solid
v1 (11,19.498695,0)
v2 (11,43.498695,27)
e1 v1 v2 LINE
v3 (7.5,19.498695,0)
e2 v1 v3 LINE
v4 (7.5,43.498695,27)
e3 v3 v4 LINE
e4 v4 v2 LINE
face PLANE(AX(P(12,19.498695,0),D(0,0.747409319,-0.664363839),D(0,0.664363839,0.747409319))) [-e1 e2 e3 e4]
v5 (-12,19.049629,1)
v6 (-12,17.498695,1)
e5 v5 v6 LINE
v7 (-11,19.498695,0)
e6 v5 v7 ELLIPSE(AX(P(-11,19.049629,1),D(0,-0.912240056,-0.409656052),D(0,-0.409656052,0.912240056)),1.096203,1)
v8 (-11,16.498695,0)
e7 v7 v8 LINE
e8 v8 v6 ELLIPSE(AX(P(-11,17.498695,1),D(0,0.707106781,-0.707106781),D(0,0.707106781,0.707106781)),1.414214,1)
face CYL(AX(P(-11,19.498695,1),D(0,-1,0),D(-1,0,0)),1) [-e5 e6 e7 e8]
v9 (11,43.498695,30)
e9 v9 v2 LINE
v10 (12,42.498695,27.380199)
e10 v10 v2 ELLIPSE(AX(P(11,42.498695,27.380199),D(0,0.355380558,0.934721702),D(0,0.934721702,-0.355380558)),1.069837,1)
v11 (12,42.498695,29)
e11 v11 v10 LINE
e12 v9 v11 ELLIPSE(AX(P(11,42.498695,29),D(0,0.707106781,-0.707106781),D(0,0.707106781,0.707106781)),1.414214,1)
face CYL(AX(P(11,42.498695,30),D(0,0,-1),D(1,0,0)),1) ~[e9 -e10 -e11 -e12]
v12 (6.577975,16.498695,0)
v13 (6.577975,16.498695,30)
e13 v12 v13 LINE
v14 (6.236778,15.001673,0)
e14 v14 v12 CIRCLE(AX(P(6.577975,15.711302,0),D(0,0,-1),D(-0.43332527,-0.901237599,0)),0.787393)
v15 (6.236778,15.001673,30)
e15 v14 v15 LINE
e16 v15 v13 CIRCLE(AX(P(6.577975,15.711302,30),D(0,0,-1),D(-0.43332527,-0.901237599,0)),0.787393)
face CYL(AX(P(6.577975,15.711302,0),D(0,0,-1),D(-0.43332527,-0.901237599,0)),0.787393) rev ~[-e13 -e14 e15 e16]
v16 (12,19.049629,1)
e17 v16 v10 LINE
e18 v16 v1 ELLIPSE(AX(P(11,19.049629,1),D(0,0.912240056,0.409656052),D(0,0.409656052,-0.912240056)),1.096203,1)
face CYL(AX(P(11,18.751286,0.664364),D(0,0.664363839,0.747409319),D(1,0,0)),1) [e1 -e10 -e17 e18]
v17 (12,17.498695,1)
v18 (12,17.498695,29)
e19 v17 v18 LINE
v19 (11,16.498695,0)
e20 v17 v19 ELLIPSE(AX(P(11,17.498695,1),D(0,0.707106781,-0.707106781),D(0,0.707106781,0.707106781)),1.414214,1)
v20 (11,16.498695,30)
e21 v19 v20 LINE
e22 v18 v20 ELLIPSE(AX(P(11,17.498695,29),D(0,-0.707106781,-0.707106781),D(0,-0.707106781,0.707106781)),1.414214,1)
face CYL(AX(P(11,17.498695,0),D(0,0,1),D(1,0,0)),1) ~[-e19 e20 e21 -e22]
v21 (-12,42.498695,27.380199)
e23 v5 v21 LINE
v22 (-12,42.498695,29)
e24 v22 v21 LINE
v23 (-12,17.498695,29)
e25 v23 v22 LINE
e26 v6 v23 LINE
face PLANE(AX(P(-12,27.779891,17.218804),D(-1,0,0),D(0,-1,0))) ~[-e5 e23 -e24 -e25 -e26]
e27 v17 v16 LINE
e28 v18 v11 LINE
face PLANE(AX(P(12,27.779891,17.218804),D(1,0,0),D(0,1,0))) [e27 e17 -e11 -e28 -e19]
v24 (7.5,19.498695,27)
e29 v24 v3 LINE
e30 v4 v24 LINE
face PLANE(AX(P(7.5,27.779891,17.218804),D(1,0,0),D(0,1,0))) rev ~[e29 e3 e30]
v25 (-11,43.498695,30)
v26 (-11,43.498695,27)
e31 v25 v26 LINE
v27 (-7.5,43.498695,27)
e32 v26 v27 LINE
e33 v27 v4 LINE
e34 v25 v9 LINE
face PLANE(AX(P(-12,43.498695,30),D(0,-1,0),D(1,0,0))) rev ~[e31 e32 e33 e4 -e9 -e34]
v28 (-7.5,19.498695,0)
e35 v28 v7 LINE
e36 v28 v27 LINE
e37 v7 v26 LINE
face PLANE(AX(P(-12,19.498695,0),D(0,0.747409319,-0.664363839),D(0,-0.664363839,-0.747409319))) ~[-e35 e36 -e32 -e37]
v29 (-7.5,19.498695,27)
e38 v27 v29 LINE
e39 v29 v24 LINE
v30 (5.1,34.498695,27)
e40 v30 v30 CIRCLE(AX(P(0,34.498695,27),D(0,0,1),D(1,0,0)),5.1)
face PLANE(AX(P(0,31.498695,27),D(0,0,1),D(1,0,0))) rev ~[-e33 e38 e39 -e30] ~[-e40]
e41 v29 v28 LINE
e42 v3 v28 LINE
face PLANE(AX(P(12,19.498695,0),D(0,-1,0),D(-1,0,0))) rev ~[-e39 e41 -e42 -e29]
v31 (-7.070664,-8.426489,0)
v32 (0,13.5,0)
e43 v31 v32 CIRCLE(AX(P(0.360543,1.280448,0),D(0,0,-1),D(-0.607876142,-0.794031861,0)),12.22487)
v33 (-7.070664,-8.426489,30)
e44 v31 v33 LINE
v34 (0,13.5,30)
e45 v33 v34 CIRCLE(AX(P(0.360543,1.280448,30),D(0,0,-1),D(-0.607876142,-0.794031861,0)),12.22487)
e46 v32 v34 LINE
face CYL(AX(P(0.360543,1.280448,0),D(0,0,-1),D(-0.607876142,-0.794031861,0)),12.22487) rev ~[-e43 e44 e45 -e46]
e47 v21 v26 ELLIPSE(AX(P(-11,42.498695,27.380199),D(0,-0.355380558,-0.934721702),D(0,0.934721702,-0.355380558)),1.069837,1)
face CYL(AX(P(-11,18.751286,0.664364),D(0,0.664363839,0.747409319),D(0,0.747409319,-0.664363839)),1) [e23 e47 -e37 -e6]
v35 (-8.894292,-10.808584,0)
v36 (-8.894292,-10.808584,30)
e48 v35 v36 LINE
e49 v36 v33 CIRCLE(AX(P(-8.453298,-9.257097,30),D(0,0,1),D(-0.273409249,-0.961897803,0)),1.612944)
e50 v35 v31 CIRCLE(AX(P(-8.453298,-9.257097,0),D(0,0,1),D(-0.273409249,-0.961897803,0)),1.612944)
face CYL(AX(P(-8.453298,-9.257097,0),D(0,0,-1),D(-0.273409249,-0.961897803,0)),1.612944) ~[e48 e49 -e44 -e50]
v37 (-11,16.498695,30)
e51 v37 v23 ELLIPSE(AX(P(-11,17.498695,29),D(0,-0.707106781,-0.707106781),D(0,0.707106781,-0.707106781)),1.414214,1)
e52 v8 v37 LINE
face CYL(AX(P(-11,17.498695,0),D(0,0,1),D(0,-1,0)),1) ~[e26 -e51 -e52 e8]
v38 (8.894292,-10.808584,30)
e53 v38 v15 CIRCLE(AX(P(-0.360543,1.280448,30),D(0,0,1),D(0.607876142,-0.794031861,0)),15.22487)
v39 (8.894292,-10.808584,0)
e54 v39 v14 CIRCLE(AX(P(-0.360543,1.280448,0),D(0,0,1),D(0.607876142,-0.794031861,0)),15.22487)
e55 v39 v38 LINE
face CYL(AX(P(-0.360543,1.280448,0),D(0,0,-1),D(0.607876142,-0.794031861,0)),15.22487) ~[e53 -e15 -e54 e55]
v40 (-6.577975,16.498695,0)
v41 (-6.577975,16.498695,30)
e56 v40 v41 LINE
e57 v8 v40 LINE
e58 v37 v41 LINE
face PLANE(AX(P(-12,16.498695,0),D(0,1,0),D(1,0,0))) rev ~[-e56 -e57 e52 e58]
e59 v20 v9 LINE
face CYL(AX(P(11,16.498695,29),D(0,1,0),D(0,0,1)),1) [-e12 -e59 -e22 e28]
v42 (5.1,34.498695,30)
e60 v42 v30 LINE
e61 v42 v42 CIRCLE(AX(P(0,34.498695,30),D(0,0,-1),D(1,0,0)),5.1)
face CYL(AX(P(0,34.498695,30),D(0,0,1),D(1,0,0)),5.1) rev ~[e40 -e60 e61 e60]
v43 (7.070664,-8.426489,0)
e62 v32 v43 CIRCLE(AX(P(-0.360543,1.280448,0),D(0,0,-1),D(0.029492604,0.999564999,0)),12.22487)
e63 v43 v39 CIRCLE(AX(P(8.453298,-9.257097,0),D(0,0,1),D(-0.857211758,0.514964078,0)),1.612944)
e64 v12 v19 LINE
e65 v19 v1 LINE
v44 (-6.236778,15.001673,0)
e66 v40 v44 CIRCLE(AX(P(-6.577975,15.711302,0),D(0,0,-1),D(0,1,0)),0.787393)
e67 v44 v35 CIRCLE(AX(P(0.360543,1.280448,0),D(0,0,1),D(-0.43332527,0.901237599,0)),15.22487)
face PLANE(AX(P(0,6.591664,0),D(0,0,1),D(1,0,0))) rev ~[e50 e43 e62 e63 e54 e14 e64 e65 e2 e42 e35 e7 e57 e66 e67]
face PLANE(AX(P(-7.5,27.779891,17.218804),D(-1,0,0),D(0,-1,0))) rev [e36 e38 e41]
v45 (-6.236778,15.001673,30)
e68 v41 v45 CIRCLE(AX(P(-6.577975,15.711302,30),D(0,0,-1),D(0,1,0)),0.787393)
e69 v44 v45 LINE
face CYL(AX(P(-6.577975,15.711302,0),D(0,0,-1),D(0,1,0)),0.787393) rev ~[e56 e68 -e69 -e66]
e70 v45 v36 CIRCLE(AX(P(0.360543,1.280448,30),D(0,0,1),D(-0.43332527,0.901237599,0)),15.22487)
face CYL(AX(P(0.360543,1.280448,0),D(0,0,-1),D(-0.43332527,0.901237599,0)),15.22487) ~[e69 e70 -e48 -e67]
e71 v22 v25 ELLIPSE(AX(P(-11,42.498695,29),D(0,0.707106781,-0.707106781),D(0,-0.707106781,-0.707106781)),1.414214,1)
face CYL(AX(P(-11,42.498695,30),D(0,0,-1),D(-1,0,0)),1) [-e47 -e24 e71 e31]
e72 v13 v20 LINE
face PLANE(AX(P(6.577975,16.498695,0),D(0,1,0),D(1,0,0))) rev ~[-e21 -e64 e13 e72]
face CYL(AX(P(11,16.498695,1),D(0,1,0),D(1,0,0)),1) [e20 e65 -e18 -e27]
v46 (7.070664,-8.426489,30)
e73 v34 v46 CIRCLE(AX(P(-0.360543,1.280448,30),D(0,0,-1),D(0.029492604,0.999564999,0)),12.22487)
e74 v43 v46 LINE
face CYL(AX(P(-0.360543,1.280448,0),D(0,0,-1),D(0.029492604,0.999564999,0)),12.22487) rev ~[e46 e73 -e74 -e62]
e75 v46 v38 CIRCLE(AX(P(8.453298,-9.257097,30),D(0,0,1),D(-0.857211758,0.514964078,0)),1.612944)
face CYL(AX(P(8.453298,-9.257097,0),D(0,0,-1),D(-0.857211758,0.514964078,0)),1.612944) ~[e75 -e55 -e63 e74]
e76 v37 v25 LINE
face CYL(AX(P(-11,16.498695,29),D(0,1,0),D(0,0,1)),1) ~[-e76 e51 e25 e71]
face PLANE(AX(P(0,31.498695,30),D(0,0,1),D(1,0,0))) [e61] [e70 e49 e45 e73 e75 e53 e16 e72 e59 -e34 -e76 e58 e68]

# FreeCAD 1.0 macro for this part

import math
import FreeCAD as App
import Part
import Sketcher


def edges_at(feature, points):
    """Names of the edges that pass closest to the given points."""
    edges = feature.Shape.Edges
    near = lambda p: min(range(len(edges)), key=lambda i: edges[i].distToShape(Part.Vertex(*p))[0])
    return sorted({f"Edge{near(p) + 1}" for p in points})


def add_polygon(sketch, points):
    """Adds a closed chain of lines whose ends are joined by coincident constraints."""
    first, n = sketch.GeometryCount, len(points)
    for a, b in zip(points, points[1:] + points[:1]):
        sketch.addGeometry(Part.LineSegment(App.Vector(*a, 0), App.Vector(*b, 0)), False)
    for i in range(n):
        sketch.addConstraint(Sketcher.Constraint("Coincident", first + i, 2, first + (i + 1) % n, 1))

doc = App.newDocument("Part")
params = doc.addObject("Spreadsheet::Sheet", "Params")
for row, (alias, value) in enumerate([
    ("sketch1_width", "24 mm"),
    ("sketch1_height", "3 mm"),
    ("pad1_length", "30 mm"),
    ("sketch2_diameter", "10.2 mm"),
    ("sketch2_width", "24 mm"),
    ("pad2_length", "3 mm"),
    ("sketch3_width", "24 mm"),
    ("sketch3_height", "27 mm"),
    ("pad3_length", "4.5 mm"),
    ("fillet_radius", "1 mm"),
], start=1):
    params.set(f"A{row}", alias)
    params.set(f"B{row}", "=" + value)
    params.setAlias(f"B{row}", alias)

body = doc.addObject("PartDesign::Body", "Body")

sketch1 = body.newObject("Sketcher::SketchObject", "Sketch")
sketch1.AttachmentSupport = (doc.getObject("XY_Plane"), [""])
sketch1.MapMode = "FlatFace"
sketch1.addGeometry([
    Part.ArcOfCircle(Part.Circle(App.Vector(-0.360543, 1.280448, 0), App.Vector(0, 0, 1), 12.22487), math.radians(-52.563908), math.radians(88.309953)),
    Part.ArcOfCircle(Part.Circle(App.Vector(8.453298, -9.257097, 0), App.Vector(0, 0, 1), 1.612944), math.radians(149.004946), math.radians(285.867238)),
    Part.ArcOfCircle(Part.Circle(App.Vector(-0.360543, 1.280448, 0), App.Vector(0, 0, 1), 15.22487), math.radians(-52.563908), math.radians(64.321224)),
    Part.ArcOfCircle(Part.Circle(App.Vector(6.577975, 15.711302, 0), App.Vector(0, 0, 1), 0.787393), math.radians(90), math.radians(244.321224)),
    Part.LineSegment(App.Vector(6.577975, 16.498695, 0), App.Vector(12, 16.498695, 0)),
    Part.LineSegment(App.Vector(12, 16.498695, 0), App.Vector(12, 19.498695, 0)),
    Part.LineSegment(App.Vector(12, 19.498695, 0), App.Vector(-12, 19.498695, 0)),
    Part.LineSegment(App.Vector(-12, 19.498695, 0), App.Vector(-12, 16.498695, 0)),
    Part.LineSegment(App.Vector(-12, 16.498695, 0), App.Vector(-6.577975, 16.498695, 0)),
    Part.ArcOfCircle(Part.Circle(App.Vector(-6.577975, 15.711302, 0), App.Vector(0, 0, 1), 0.787393), math.radians(-64.321224), math.radians(90)),
    Part.ArcOfCircle(Part.Circle(App.Vector(0.360543, 1.280448, 0), App.Vector(0, 0, 1), 15.22487), math.radians(115.678776), math.radians(232.563908)),
    Part.ArcOfCircle(Part.Circle(App.Vector(-8.453298, -9.257097, 0), App.Vector(0, 0, 1), 1.612944), math.radians(-105.867238), math.radians(30.995054)),
    Part.ArcOfCircle(Part.Circle(App.Vector(0.360543, 1.280448, 0), App.Vector(0, 0, 1), 12.22487), math.radians(91.690047), math.radians(232.563908)),
], False)
sketch1.addConstraint([
    Sketcher.Constraint("Coincident", 0, 1, 1, 1),
    Sketcher.Constraint("Coincident", 1, 2, 2, 1),
    Sketcher.Constraint("Tangent", 2, 2, 3, 2),
    Sketcher.Constraint("Tangent", 3, 1, 4, 1),
    Sketcher.Constraint("Coincident", 4, 2, 5, 1),
    Sketcher.Constraint("Coincident", 5, 2, 6, 1),
    Sketcher.Constraint("Coincident", 6, 2, 7, 1),
    Sketcher.Constraint("Coincident", 7, 2, 8, 1),
    Sketcher.Constraint("Tangent", 8, 2, 9, 2),
    Sketcher.Constraint("Tangent", 9, 1, 10, 1),
    Sketcher.Constraint("Coincident", 10, 2, 11, 1),
    Sketcher.Constraint("Coincident", 11, 2, 12, 2),
    Sketcher.Constraint("Coincident", 12, 1, 0, 2),
    Sketcher.Constraint("Horizontal", 4),
    Sketcher.Constraint("Vertical", 5),
    Sketcher.Constraint("Horizontal", 6),
    Sketcher.Constraint("Vertical", 7),
    Sketcher.Constraint("Horizontal", 8),
    Sketcher.Constraint("Coincident", 2, 3, 0, 3),
    Sketcher.Constraint("Coincident", 12, 3, 10, 3),
    Sketcher.Constraint("Equal", 3, 9),
    Sketcher.Constraint("Equal", 2, 10),
    Sketcher.Constraint("Equal", 1, 11),
    Sketcher.Constraint("Equal", 0, 12),
    Sketcher.Constraint("Symmetric", 3, 3, 9, 3, -2),
    Sketcher.Constraint("Symmetric", 1, 3, 11, 3, -2),
    Sketcher.Constraint("PointOnObject", 12, 1, -2),
    Sketcher.Constraint("Equal", 4, 8),
    Sketcher.Constraint("DistanceX", 6, 2, 6, 1, 24.0),
    Sketcher.Constraint("DistanceY", 5, 1, 5, 2, 3.0),
    Sketcher.Constraint("DistanceY", -1, 1, 12, 1, 13.5),
    Sketcher.Constraint("Radius", 0, 12.22487),
    Sketcher.Constraint("Radius", 2, 15.22487),
    Sketcher.Constraint("Radius", 1, 1.612944),
    Sketcher.Constraint("Radius", 3, 0.787393),
    Sketcher.Constraint("DistanceX", -1, 1, 1, 3, 8.453298),
    Sketcher.Constraint("DistanceY", -1, 1, 3, 3, 15.711302),
    Sketcher.Constraint("DistanceY", 1, 3, 3, 3, 24.968399),
    Sketcher.Constraint("DistanceX", 4, 1, 4, 2, 5.422025),
])
sketch1.setExpression("Constraints[28]", "Params.sketch1_width")
sketch1.setExpression("Constraints[29]", "Params.sketch1_height")
pad1 = body.newObject("PartDesign::Pad", "Pad")
pad1.Profile = sketch1
pad1.setExpression("Length", "Params.pad1_length")

sketch2 = body.newObject("Sketcher::SketchObject", "Sketch001")
sketch2.AttachmentSupport = (doc.getObject("XY_Plane"), [""])
sketch2.MapMode = "FlatFace"
sketch2.AttachmentOffset = App.Placement(App.Vector(0, 0, 30), App.Rotation())
add_polygon(sketch2, [(-12, 43.498695), (-12, 19.498695), (12, 19.498695), (12, 43.498695)])
sketch2.addGeometry(Part.Circle(App.Vector(0, 34.498695, 0), App.Vector(0, 0, 1), 5.1), False)
sketch2.addConstraint([
    Sketcher.Constraint("Vertical", 0),
    Sketcher.Constraint("Horizontal", 1),
    Sketcher.Constraint("Vertical", 2),
    Sketcher.Constraint("Horizontal", 3),
    Sketcher.Constraint("PointOnObject", 4, 3, -2),
    Sketcher.Constraint("Equal", 3, 0),
    Sketcher.Constraint("Diameter", 4, 10.2),
    Sketcher.Constraint("DistanceX", 1, 1, 1, 2, 24.0),
    Sketcher.Constraint("DistanceX", 0, 2, -1, 1, 12.0),
    Sketcher.Constraint("DistanceY", 0, 2, 4, 3, 15.0),
    Sketcher.Constraint("DistanceY", -1, 1, 4, 3, 34.498695),
])
sketch2.setExpression("Constraints[10]", "Params.sketch2_diameter")
sketch2.setExpression("Constraints[11]", "Params.sketch2_width")
pad2 = body.newObject("PartDesign::Pad", "Pad001")
pad2.Profile = sketch2
pad2.setExpression("Length", "Params.pad2_length")
pad2.Reversed = True

sketch3 = body.newObject("Sketcher::SketchObject", "Sketch002")
sketch3.AttachmentSupport = (doc.getObject("YZ_Plane"), [""])
sketch3.MapMode = "FlatFace"
sketch3.AttachmentOffset = App.Placement(App.Vector(0, 0, 12), App.Rotation())
add_polygon(sketch3, [(19.498695, 27), (19.498695, 0), (43.498695, 27)])
sketch3.addConstraint([
    Sketcher.Constraint("Vertical", 0),
    Sketcher.Constraint("Horizontal", 2),
    Sketcher.Constraint("PointOnObject", 0, 2, -1),
    Sketcher.Constraint("DistanceX", 2, 2, 2, 1, 24.0),
    Sketcher.Constraint("DistanceY", 0, 2, 0, 1, 27.0),
    Sketcher.Constraint("DistanceX", -1, 1, 0, 2, 19.498695),
])
sketch3.setExpression("Constraints[6]", "Params.sketch3_width")
sketch3.setExpression("Constraints[7]", "Params.sketch3_height")
pad3 = body.newObject("PartDesign::Pad", "Pad002")
pad3.Profile = sketch3
pad3.setExpression("Length", "Params.pad3_length")
pad3.Reversed = True
body2 = doc.addObject("PartDesign::Body", "Body001")
doc.recompute()

body2.BaseFeature = body
doc.recompute()

mirroring = doc.addObject("Part::Mirroring", "Mirroring")
mirroring.Source = body
mirroring.Base = App.Vector(0, 0, 0)
mirroring.Normal = App.Vector(1, 0, 0)
body3 = doc.addObject("PartDesign::Body", "Body002")
body3.BaseFeature = mirroring
boolean = body2.newObject("PartDesign::Boolean", "Boolean")
boolean.Type = "Fuse"
boolean.addObjects([body3])
doc.recompute()

fillet = body2.newObject("PartDesign::Fillet", "Fillet")
fillet.Base = (boolean, edges_at(boolean, [
    (12, 17.999, 0),
    (12, 16.499, 15),
    (12, 29.999, 30),
    (12, 43.499, 28.5),
    (12, 31.499, 13.5),
    (-12, 43.499, 28.5),
    (-12, 29.999, 30),
    (-12, 16.499, 15),
    (-12, 17.999, 0),
    (-12, 31.499, 13.5),
]))
fillet.setExpression("Radius", "Params.fillet_radius")
mirroring.Visibility = False

doc.recompute()
